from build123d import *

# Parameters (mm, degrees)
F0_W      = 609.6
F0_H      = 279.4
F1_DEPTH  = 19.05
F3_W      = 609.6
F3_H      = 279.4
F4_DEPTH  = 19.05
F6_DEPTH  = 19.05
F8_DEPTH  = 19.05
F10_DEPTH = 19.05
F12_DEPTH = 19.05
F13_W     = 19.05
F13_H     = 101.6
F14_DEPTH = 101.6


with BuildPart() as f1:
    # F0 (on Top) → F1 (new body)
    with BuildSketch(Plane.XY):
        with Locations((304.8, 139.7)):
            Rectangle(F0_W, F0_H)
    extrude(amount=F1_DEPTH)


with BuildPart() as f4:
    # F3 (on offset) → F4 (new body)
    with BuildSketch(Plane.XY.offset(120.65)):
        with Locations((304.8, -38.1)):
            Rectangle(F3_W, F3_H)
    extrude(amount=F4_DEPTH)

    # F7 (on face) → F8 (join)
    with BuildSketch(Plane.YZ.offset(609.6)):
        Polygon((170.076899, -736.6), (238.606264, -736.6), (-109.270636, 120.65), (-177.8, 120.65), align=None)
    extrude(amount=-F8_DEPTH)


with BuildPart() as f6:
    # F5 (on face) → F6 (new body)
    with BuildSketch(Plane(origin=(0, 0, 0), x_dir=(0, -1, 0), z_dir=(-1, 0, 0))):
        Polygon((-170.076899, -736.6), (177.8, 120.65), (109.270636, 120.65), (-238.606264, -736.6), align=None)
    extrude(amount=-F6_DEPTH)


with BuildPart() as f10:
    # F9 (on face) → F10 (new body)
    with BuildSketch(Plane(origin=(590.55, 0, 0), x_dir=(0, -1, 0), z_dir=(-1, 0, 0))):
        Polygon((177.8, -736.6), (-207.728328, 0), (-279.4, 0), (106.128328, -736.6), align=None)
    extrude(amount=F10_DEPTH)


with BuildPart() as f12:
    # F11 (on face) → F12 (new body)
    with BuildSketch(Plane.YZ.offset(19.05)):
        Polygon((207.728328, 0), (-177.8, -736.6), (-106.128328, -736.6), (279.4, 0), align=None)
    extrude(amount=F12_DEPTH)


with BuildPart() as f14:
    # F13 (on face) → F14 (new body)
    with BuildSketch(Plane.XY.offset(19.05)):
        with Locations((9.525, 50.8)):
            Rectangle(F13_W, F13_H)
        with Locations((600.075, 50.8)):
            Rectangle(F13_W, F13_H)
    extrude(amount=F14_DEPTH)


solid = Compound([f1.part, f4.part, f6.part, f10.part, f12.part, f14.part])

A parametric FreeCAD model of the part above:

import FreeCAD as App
import Part
import Sketcher
Q = App.Units.Quantity


def add_polygon(sketch, points):
    """Adds a closed chain of lines whose ends are joined by coincident constraints."""
    first, n = sketch.GeometryCount, len(points)
    for a, b in zip(points, points[1:] + points[:1]):
        sketch.addGeometry(Part.LineSegment(App.Vector(*a, 0), App.Vector(*b, 0)), False)
    for i in range(n):
        sketch.addConstraint(Sketcher.Constraint("Coincident", first + i, 2, first + (i + 1) % n, 1))

doc = App.newDocument("Part")
body = doc.addObject("PartDesign::Body", "Body")

sketch1 = body.newObject("Sketcher::SketchObject", "Sketch")
sketch1.AttachmentSupport = (doc.getObject("XY_Plane"), [""])
sketch1.MapMode = "FlatFace"
add_polygon(sketch1, [(0, 279), (0, 0), (610, 0), (610, 279)])
sketch1.addConstraint(Sketcher.Constraint("Vertical", 0))
sketch1.addConstraint(Sketcher.Constraint("Horizontal", 1))
sketch1.addConstraint(Sketcher.Constraint("Vertical", 2))
sketch1.addConstraint(Sketcher.Constraint("Horizontal", 3))
sketch1.addConstraint(Sketcher.Constraint("Coincident", 0, 2, -1, 1))
sketch1.addConstraint(Sketcher.Constraint("DistanceX", 1, 1, 1, 2, Q("24 in")))
sketch1.addConstraint(Sketcher.Constraint("DistanceY", 0, 2, 0, 1, Q("11 in")))
pad1 = body.newObject("PartDesign::Pad", "Pad")
pad1.Profile = sketch1
pad1.Length = Q("0.75 in")
body2 = doc.addObject("PartDesign::Body", "Body001")

sketch2 = body2.newObject("Sketcher::SketchObject", "Sketch001")
sketch2.AttachmentSupport = (doc.getObject("XY_Plane001"), [""])
sketch2.MapMode = "FlatFace"
sketch2.AttachmentOffset = App.Placement(App.Vector(0, 0, 4.75 * 25.4), App.Rotation())
add_polygon(sketch2, [(0, 102), (0, -178), (610, -178), (610, 102)])
sketch2.addConstraint(Sketcher.Constraint("Vertical", 0))
sketch2.addConstraint(Sketcher.Constraint("Horizontal", 1))
sketch2.addConstraint(Sketcher.Constraint("Vertical", 2))
sketch2.addConstraint(Sketcher.Constraint("Horizontal", 3))
sketch2.addConstraint(Sketcher.Constraint("PointOnObject", 0, 2, -2))
sketch2.addConstraint(Sketcher.Constraint("DistanceX", 1, 1, 1, 2, Q("24 in")))
sketch2.addConstraint(Sketcher.Constraint("DistanceY", 0, 2, 0, 1, Q("11 in")))
sketch2.addConstraint(Sketcher.Constraint("DistanceY", 0, 2, -1, 1, Q("7 in")))
pad2 = body2.newObject("PartDesign::Pad", "Pad001")
pad2.Profile = sketch2
pad2.Length = Q("0.75 in")

sketch3 = body2.newObject("Sketcher::SketchObject", "Sketch002")
sketch3.AttachmentSupport = (doc.getObject("YZ_Plane001"), [""])
sketch3.MapMode = "FlatFace"
sketch3.AttachmentOffset = App.Placement(App.Vector(0, 0, 24 * 25.4), App.Rotation())
add_polygon(sketch3, [(170, -737), (239, -737), (-109, 121), (-178, 121)])
sketch3.addConstraint(Sketcher.Constraint("Horizontal", 0))
sketch3.addConstraint(Sketcher.Constraint("Horizontal", 2))
sketch3.addConstraint(Sketcher.Constraint("Parallel", 1, 3))
sketch3.addConstraint(Sketcher.Constraint("DistanceY", 0, 2, -1, 1, Q("29 in")))
sketch3.addConstraint(Sketcher.Constraint("DistanceX", 2, 2, -1, 1, Q("7 in")))
sketch3.addConstraint(Sketcher.Constraint("DistanceY", -1, 1, 1, 2, Q("4.75 in")))
sketch3.addConstraint(Sketcher.Constraint("DistanceX", -1, 1, 3, 2, Q("170.076899 mm")))
sketch3.addConstraint(Sketcher.Constraint("DistanceX", 0, 1, 0, 2, Q("68.529365 mm")))
pad3 = body2.newObject("PartDesign::Pad", "Pad002")
pad3.Profile = sketch3
pad3.Length = Q("0.75 in")
pad3.Reversed = True
body3 = doc.addObject("PartDesign::Body", "Body002")

sketch4 = body3.newObject("Sketcher::SketchObject", "Sketch003")
sketch4.AttachmentSupport = (doc.getObject("YZ_Plane002"), [""])
sketch4.MapMode = "FlatFace"
add_polygon(sketch4, [(170, -737), (-178, 121), (-109, 121), (239, -737)])
sketch4.addConstraint(Sketcher.Constraint("Horizontal", 1))
sketch4.addConstraint(Sketcher.Constraint("Horizontal", 3))
sketch4.addConstraint(Sketcher.Constraint("Parallel", 0, 2))
sketch4.addConstraint(Sketcher.Constraint("DistanceX", 0, 2, -1, 1, Q("7 in")))
sketch4.addConstraint(Sketcher.Constraint("DistanceY", 2, 2, -1, 1, Q("29 in")))
sketch4.addConstraint(Sketcher.Constraint("DistanceY", -1, 1, 0, 2, Q("4.75 in")))
sketch4.addConstraint(Sketcher.Constraint("DistanceX", -1, 1, 3, 2, Q("170.076899 mm")))
sketch4.addConstraint(Sketcher.Constraint("DistanceX", 1, 1, 1, 2, Q("68.529364 mm")))
pad4 = body3.newObject("PartDesign::Pad", "Pad003")
pad4.Profile = sketch4
pad4.Length = Q("0.75 in")
body4 = doc.addObject("PartDesign::Body", "Body003")

sketch5 = body4.newObject("Sketcher::SketchObject", "Sketch004")
sketch5.AttachmentSupport = (doc.getObject("YZ_Plane003"), [""])
sketch5.MapMode = "FlatFace"
sketch5.AttachmentOffset = App.Placement(App.Vector(0, 0, 23.25 * 25.4), App.Rotation())
add_polygon(sketch5, [(-178, -737), (208, 0), (279, 0), (-106, -737)])
sketch5.addConstraint(Sketcher.Constraint("Horizontal", 1))
sketch5.addConstraint(Sketcher.Constraint("Horizontal", 3))
sketch5.addConstraint(Sketcher.Constraint("PointOnObject", 0, 2, -1))
sketch5.addConstraint(Sketcher.Constraint("Parallel", 0, 2))
sketch5.addConstraint(Sketcher.Constraint("DistanceX", -1, 1, 1, 2, Q("11 in")))
sketch5.addConstraint(Sketcher.Constraint("DistanceY", 2, 2, -1, 1, Q("29 in")))
sketch5.addConstraint(Sketcher.Constraint("DistanceX", 3, 2, -1, 1, Q("7 in")))
sketch5.addConstraint(Sketcher.Constraint("DistanceX", 1, 1, 1, 2, Q("71.671672 mm")))
pad5 = body4.newObject("PartDesign::Pad", "Pad004")
pad5.Profile = sketch5
pad5.Length = Q("0.75 in")
pad5.Reversed = True
body5 = doc.addObject("PartDesign::Body", "Body004")

sketch6 = body5.newObject("Sketcher::SketchObject", "Sketch005")
sketch6.AttachmentSupport = (doc.getObject("YZ_Plane004"), [""])
sketch6.MapMode = "FlatFace"
sketch6.AttachmentOffset = App.Placement(App.Vector(0, 0, 0.75 * 25.4), App.Rotation())
add_polygon(sketch6, [(208, 0), (-178, -737), (-106, -737), (279, 0)])
sketch6.addConstraint(Sketcher.Constraint("Horizontal", 1))
sketch6.addConstraint(Sketcher.Constraint("Horizontal", 3))
sketch6.addConstraint(Sketcher.Constraint("PointOnObject", 2, 2, -1))
sketch6.addConstraint(Sketcher.Constraint("Parallel", 0, 2))
sketch6.addConstraint(Sketcher.Constraint("DistanceX", 0, 2, -1, 1, Q("7 in")))
sketch6.addConstraint(Sketcher.Constraint("DistanceY", 0, 2, -1, 1, Q("29 in")))
sketch6.addConstraint(Sketcher.Constraint("DistanceX", -1, 1, 2, 2, Q("11 in")))
sketch6.addConstraint(Sketcher.Constraint("DistanceX", 3, 2, 3, 1, Q("71.671672 mm")))
pad6 = body5.newObject("PartDesign::Pad", "Pad005")
pad6.Profile = sketch6
pad6.Length = Q("0.75 in")
body6 = doc.addObject("PartDesign::Body", "Body005")
body6.AllowCompound = True

sketch7 = body6.newObject("Sketcher::SketchObject", "Sketch006")
sketch7.AttachmentSupport = (doc.getObject("XY_Plane005"), [""])
sketch7.MapMode = "FlatFace"
sketch7.AttachmentOffset = App.Placement(App.Vector(0, 0, 0.75 * 25.4), App.Rotation())
add_polygon(sketch7, [(0, 102), (0, 0), (19, 0), (19, 102)])
add_polygon(sketch7, [(591, 102), (591, 0), (610, 0), (610, 102)])
sketch7.addConstraint(Sketcher.Constraint("Vertical", 0))
sketch7.addConstraint(Sketcher.Constraint("Horizontal", 1))
sketch7.addConstraint(Sketcher.Constraint("Vertical", 2))
sketch7.addConstraint(Sketcher.Constraint("Horizontal", 3))
sketch7.addConstraint(Sketcher.Constraint("Vertical", 4))
sketch7.addConstraint(Sketcher.Constraint("Horizontal", 5))
sketch7.addConstraint(Sketcher.Constraint("Vertical", 6))
sketch7.addConstraint(Sketcher.Constraint("Horizontal", 7))
sketch7.addConstraint(Sketcher.Constraint("Coincident", 0, 2, -1, 1))
sketch7.addConstraint(Sketcher.Constraint("PointOnObject", 4, 2, -1))
sketch7.addConstraint(Sketcher.Constraint("Horizontal", 3, 2, 6, 2))
sketch7.addConstraint(Sketcher.Constraint("Equal", 3, 5))
sketch7.addConstraint(Sketcher.Constraint("DistanceY", 0, 2, 0, 1, Q("4 in")))
sketch7.addConstraint(Sketcher.Constraint("DistanceX", -1, 1, 5, 2, Q("24 in")))
sketch7.addConstraint(Sketcher.Constraint("DistanceX", 1, 1, 1, 2, Q("0.75 in")))
pad7 = body6.newObject("PartDesign::Pad", "Pad006")
pad7.Profile = sketch7
pad7.Length = Q("4 in")

doc.recompute()
